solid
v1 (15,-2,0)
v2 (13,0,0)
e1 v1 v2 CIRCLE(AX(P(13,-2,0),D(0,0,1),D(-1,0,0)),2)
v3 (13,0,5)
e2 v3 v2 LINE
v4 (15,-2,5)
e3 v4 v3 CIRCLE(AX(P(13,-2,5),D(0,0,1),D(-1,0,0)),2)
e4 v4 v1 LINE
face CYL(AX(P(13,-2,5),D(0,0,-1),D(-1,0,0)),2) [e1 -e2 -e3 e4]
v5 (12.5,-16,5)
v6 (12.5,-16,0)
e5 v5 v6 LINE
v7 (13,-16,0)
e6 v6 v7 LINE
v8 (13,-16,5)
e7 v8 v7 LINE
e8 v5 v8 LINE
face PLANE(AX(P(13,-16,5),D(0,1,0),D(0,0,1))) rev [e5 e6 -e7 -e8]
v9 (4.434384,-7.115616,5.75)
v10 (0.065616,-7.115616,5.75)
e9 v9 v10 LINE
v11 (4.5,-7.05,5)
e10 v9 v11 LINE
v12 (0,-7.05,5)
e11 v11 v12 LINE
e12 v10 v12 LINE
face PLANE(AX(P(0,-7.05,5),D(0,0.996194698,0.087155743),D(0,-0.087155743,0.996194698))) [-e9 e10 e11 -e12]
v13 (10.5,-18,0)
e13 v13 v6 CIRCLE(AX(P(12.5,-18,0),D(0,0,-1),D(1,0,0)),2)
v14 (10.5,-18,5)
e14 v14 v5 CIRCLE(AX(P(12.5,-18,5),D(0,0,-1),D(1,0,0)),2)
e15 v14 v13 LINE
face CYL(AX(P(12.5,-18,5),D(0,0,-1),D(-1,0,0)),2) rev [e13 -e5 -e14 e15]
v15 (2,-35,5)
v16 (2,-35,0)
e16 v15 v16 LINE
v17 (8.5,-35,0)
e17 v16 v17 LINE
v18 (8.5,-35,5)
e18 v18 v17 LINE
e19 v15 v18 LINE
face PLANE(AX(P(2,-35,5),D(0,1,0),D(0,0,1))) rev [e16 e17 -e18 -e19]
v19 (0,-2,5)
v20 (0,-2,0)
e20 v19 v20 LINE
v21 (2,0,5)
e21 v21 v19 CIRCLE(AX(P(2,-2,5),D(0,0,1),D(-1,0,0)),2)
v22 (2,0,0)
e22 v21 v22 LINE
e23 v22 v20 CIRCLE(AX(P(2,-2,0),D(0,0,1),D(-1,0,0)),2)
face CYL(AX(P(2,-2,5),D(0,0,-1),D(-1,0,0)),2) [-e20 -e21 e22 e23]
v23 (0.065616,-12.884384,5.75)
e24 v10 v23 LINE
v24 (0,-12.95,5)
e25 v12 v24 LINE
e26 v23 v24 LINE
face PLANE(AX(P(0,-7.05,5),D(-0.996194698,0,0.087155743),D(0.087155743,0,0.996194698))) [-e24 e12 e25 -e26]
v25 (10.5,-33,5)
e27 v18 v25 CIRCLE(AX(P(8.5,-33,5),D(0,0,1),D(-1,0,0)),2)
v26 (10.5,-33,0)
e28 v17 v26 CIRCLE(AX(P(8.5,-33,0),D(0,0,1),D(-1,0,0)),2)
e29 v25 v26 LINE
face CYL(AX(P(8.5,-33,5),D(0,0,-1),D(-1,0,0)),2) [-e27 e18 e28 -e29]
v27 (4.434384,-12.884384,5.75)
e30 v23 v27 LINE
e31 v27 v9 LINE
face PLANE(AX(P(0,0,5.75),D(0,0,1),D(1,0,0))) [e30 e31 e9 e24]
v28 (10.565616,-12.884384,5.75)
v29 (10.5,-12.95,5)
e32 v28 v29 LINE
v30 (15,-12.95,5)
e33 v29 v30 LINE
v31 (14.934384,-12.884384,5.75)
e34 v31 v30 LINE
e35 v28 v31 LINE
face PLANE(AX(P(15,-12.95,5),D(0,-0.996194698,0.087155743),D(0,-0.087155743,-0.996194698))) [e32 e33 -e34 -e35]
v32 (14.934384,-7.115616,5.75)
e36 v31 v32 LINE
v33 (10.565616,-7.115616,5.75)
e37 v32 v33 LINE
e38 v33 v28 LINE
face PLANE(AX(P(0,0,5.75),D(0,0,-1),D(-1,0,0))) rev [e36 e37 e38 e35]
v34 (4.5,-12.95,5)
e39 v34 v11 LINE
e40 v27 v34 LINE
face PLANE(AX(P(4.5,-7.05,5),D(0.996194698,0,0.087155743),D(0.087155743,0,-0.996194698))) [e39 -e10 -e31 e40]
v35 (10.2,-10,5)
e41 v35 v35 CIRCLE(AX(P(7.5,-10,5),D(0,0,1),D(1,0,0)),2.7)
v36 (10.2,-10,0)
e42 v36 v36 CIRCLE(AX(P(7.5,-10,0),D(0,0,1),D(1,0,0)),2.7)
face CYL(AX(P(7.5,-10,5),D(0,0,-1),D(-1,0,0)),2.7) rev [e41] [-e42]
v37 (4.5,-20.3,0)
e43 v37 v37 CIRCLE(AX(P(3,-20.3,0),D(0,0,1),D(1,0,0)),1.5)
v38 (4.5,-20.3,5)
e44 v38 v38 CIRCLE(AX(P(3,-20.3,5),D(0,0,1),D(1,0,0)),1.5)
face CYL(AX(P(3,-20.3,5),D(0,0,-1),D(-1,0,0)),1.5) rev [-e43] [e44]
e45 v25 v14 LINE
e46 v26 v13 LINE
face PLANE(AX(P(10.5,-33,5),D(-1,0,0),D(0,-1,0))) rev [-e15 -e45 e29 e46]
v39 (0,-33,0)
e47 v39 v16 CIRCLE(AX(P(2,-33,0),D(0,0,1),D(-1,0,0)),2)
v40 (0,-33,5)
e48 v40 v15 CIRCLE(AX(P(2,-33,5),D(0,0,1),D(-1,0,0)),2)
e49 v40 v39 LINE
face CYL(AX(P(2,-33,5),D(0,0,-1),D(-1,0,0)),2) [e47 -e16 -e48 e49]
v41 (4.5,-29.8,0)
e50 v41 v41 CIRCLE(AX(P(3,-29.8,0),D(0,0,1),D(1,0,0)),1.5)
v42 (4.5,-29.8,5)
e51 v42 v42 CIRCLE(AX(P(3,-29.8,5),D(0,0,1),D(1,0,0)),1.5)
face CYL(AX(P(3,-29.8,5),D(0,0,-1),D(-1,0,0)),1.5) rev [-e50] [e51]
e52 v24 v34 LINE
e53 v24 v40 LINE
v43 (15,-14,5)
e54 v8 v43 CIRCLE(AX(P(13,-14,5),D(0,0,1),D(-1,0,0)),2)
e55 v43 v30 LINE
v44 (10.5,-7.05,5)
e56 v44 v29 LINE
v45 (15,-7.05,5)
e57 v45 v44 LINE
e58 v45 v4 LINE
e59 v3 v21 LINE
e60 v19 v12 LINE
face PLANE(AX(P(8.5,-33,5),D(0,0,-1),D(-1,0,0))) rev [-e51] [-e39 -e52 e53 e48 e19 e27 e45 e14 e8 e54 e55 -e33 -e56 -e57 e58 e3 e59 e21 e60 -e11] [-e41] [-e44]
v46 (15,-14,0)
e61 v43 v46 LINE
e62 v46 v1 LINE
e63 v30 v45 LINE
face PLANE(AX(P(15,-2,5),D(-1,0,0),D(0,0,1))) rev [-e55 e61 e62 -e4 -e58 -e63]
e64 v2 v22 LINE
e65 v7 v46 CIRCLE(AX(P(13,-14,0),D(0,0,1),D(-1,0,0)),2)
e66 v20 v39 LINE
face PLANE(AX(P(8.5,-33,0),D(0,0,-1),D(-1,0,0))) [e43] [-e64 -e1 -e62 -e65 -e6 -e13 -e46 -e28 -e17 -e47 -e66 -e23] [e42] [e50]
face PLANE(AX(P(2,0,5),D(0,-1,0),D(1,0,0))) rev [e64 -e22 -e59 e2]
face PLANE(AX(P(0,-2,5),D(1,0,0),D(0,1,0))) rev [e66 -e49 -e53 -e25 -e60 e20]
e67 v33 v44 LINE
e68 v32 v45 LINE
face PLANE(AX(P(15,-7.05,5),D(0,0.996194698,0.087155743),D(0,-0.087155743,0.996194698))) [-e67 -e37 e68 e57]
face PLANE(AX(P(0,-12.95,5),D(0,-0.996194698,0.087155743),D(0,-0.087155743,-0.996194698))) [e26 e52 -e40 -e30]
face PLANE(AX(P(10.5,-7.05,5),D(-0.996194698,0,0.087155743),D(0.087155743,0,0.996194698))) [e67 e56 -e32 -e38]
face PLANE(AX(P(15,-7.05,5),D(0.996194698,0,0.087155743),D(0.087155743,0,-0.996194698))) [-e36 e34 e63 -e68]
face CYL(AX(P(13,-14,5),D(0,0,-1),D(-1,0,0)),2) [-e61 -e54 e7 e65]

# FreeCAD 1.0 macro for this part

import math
import FreeCAD as App
import Part
import Sketcher
from FreeCAD import Vector
Q = App.Units.Quantity


def add_polygon(sketch, points):
    """Adds a closed chain of lines whose ends are joined by coincident constraints."""
    first, n = sketch.GeometryCount, len(points)
    for a, b in zip(points, points[1:] + points[:1]):
        sketch.addGeometry(Part.LineSegment(App.Vector(*a, 0), App.Vector(*b, 0)), False)
    for i in range(n):
        sketch.addConstraint(Sketcher.Constraint("Coincident", first + i, 2, first + (i + 1) % n, 1))

doc = App.newDocument("Part")
body = doc.addObject("PartDesign::Body", "Body")

sketch1 = body.newObject("Sketcher::SketchObject", "Sketch")
sketch1.AttachmentSupport = (doc.getObject("XY_Plane"), [""])
sketch1.MapMode = "FlatFace"
sketch1.addGeometry(Part.LineSegment(Vector(0, -2, 0), Vector(0, -33, 0)), False)
sketch1.addGeometry(Part.ArcOfCircle(Part.Circle(Vector(2, -33, 0), Vector(0, 0, 1), 2), math.radians(-180), math.radians(-90)), False)
sketch1.addGeometry(Part.LineSegment(Vector(2, -35, 0), Vector(8.5, -35, 0)), False)
sketch1.addGeometry(Part.ArcOfCircle(Part.Circle(Vector(8.5, -33, 0), Vector(0, 0, 1), 2), math.radians(-90), math.radians(0)), False)
sketch1.addGeometry(Part.LineSegment(Vector(10.5, -33, 0), Vector(10.5, -18, 0)), False)
sketch1.addGeometry(Part.ArcOfCircle(Part.Circle(Vector(12.5, -18, 0), Vector(0, 0, 1), 2), math.radians(90), math.radians(180)), False)
sketch1.addGeometry(Part.LineSegment(Vector(12.5, -16, 0), Vector(13, -16, 0)), False)
sketch1.addGeometry(Part.ArcOfCircle(Part.Circle(Vector(13, -14, 0), Vector(0, 0, 1), 2), math.radians(-90), math.radians(0)), False)
sketch1.addGeometry(Part.LineSegment(Vector(15, -14, 0), Vector(15, -2, 0)), False)
sketch1.addGeometry(Part.ArcOfCircle(Part.Circle(Vector(13, -2, 0), Vector(0, 0, 1), 2), math.radians(0), math.radians(90)), False)
sketch1.addGeometry(Part.LineSegment(Vector(13, 0, 0), Vector(2, 0, 0)), False)
sketch1.addGeometry(Part.ArcOfCircle(Part.Circle(Vector(2, -2, 0), Vector(0, 0, 1), 2), math.radians(90), math.radians(180)), False)
sketch1.addGeometry(Part.Circle(Vector(3, -29.8, 0), Vector(0, 0, 1), 1.5), False)
sketch1.addGeometry(Part.Circle(Vector(3, -20.3, 0), Vector(0, 0, 1), 1.5), False)
sketch1.addGeometry(Part.Circle(Vector(7.5, -10, 0), Vector(0, 0, 1), 2.7), False)
sketch1.addConstraint(Sketcher.Constraint("Tangent", 0, 2, 1, 1))
sketch1.addConstraint(Sketcher.Constraint("Tangent", 1, 2, 2, 1))
sketch1.addConstraint(Sketcher.Constraint("Tangent", 2, 2, 3, 1))
sketch1.addConstraint(Sketcher.Constraint("Tangent", 3, 2, 4, 1))
sketch1.addConstraint(Sketcher.Constraint("Tangent", 4, 2, 5, 2))
sketch1.addConstraint(Sketcher.Constraint("Tangent", 5, 1, 6, 1))
sketch1.addConstraint(Sketcher.Constraint("Tangent", 6, 2, 7, 1))
sketch1.addConstraint(Sketcher.Constraint("Tangent", 7, 2, 8, 1))
sketch1.addConstraint(Sketcher.Constraint("Tangent", 8, 2, 9, 1))
sketch1.addConstraint(Sketcher.Constraint("Tangent", 9, 2, 10, 1))
sketch1.addConstraint(Sketcher.Constraint("Tangent", 10, 2, 11, 1))
sketch1.addConstraint(Sketcher.Constraint("Tangent", 11, 2, 0, 1))
sketch1.addConstraint(Sketcher.Constraint("Vertical", 0))
sketch1.addConstraint(Sketcher.Constraint("Horizontal", 2))
sketch1.addConstraint(Sketcher.Constraint("Vertical", 4))
sketch1.addConstraint(Sketcher.Constraint("Horizontal", 6))
sketch1.addConstraint(Sketcher.Constraint("Vertical", 8))
sketch1.addConstraint(Sketcher.Constraint("Horizontal", 10))
sketch1.addConstraint(Sketcher.Constraint("Equal", 1, 3))
sketch1.addConstraint(Sketcher.Constraint("Equal", 3, 5))
sketch1.addConstraint(Sketcher.Constraint("Equal", 5, 7))
sketch1.addConstraint(Sketcher.Constraint("Equal", 7, 9))
sketch1.addConstraint(Sketcher.Constraint("Equal", 9, 11))
sketch1.addConstraint(Sketcher.Constraint("Equal", 12, 13))
sketch1.addConstraint(Sketcher.Constraint("PointOnObject", 0, 2, -2))
sketch1.addConstraint(Sketcher.Constraint("PointOnObject", 9, 2, -1))
sketch1.addConstraint(Sketcher.Constraint("Vertical", 12, 3, 13, 3))
sketch1.addConstraint(Sketcher.Constraint("Diameter", 12, Q("3 mm")))
sketch1.addConstraint(Sketcher.Constraint("Radius", 1, Q("2 mm")))
sketch1.addConstraint(Sketcher.Constraint("Diameter", 14, Q("5.4 mm")))
sketch1.addConstraint(Sketcher.Constraint("DistanceX", 10, 2, 10, 1, Q("11 mm")))
sketch1.addConstraint(Sketcher.Constraint("DistanceY", 0, 2, 0, 1, Q("31 mm")))
sketch1.addConstraint(Sketcher.Constraint("DistanceY", 4, 1, 4, 2, Q("15 mm")))
sketch1.addConstraint(Sketcher.Constraint("DistanceX", 2, 1, 2, 2, Q("6.5 mm")))
sketch1.addConstraint(Sketcher.Constraint("DistanceX", -1, 1, 12, 3, Q("3 mm")))
sketch1.addConstraint(Sketcher.Constraint("DistanceY", 14, 3, -1, 1, Q("10 mm")))
sketch1.addConstraint(Sketcher.Constraint("DistanceX", 14, 3, 5, 3, Q("5 mm")))
sketch1.addConstraint(Sketcher.Constraint("DistanceY", 12, 3, -1, 1, Q("29.8 mm")))
sketch1.addConstraint(Sketcher.Constraint("DistanceY", 13, 3, -1, 1, Q("20.3 mm")))
pad1 = body.newObject("PartDesign::Pad", "Pad")
pad1.Profile = sketch1
pad1.Length = 5

sketch2 = body.newObject("Sketcher::SketchObject", "Sketch001")
sketch2.AttachmentSupport = (doc.getObject("XY_Plane"), [""])
sketch2.MapMode = "FlatFace"
sketch2.AttachmentOffset = App.Placement(Vector(0, 0, 5), App.Rotation())
add_polygon(sketch2, [(0, -7), (0, -12.9), (4.5, -12.9), (4.5, -7)])
add_polygon(sketch2, [(10.5, -7), (10.5, -12.9), (15, -12.9), (15, -7)])
sketch2.addConstraint(Sketcher.Constraint("Vertical", 0))
sketch2.addConstraint(Sketcher.Constraint("Horizontal", 1))
sketch2.addConstraint(Sketcher.Constraint("Vertical", 2))
sketch2.addConstraint(Sketcher.Constraint("Horizontal", 3))
sketch2.addConstraint(Sketcher.Constraint("Vertical", 4))
sketch2.addConstraint(Sketcher.Constraint("Horizontal", 5))
sketch2.addConstraint(Sketcher.Constraint("Vertical", 6))
sketch2.addConstraint(Sketcher.Constraint("Horizontal", 7))
sketch2.addConstraint(Sketcher.Constraint("PointOnObject", 0, 2, -2))
sketch2.addConstraint(Sketcher.Constraint("Horizontal", 1, 2, 4, 2))
sketch2.addConstraint(Sketcher.Constraint("Horizontal", 3, 2, 6, 2))
sketch2.addConstraint(Sketcher.Constraint("Equal", 3, 5))
sketch2.addConstraint(Sketcher.Constraint("DistanceX", 1, 1, 1, 2, Q("4.5 mm")))
sketch2.addConstraint(Sketcher.Constraint("DistanceY", 0, 2, 0, 1, Q("5.9 mm")))
sketch2.addConstraint(Sketcher.Constraint("DistanceX", -1, 1, 5, 2, Q("15 mm")))
sketch2.addConstraint(Sketcher.Constraint("DistanceY", 0, 2, -1, 1, Q("12.95 mm")))
pad2 = body.newObject("PartDesign::Pad", "Pad001")
pad2.Profile = sketch2
pad2.Length = 0.75
pad2.TaperAngle = -5

doc.recompute()
